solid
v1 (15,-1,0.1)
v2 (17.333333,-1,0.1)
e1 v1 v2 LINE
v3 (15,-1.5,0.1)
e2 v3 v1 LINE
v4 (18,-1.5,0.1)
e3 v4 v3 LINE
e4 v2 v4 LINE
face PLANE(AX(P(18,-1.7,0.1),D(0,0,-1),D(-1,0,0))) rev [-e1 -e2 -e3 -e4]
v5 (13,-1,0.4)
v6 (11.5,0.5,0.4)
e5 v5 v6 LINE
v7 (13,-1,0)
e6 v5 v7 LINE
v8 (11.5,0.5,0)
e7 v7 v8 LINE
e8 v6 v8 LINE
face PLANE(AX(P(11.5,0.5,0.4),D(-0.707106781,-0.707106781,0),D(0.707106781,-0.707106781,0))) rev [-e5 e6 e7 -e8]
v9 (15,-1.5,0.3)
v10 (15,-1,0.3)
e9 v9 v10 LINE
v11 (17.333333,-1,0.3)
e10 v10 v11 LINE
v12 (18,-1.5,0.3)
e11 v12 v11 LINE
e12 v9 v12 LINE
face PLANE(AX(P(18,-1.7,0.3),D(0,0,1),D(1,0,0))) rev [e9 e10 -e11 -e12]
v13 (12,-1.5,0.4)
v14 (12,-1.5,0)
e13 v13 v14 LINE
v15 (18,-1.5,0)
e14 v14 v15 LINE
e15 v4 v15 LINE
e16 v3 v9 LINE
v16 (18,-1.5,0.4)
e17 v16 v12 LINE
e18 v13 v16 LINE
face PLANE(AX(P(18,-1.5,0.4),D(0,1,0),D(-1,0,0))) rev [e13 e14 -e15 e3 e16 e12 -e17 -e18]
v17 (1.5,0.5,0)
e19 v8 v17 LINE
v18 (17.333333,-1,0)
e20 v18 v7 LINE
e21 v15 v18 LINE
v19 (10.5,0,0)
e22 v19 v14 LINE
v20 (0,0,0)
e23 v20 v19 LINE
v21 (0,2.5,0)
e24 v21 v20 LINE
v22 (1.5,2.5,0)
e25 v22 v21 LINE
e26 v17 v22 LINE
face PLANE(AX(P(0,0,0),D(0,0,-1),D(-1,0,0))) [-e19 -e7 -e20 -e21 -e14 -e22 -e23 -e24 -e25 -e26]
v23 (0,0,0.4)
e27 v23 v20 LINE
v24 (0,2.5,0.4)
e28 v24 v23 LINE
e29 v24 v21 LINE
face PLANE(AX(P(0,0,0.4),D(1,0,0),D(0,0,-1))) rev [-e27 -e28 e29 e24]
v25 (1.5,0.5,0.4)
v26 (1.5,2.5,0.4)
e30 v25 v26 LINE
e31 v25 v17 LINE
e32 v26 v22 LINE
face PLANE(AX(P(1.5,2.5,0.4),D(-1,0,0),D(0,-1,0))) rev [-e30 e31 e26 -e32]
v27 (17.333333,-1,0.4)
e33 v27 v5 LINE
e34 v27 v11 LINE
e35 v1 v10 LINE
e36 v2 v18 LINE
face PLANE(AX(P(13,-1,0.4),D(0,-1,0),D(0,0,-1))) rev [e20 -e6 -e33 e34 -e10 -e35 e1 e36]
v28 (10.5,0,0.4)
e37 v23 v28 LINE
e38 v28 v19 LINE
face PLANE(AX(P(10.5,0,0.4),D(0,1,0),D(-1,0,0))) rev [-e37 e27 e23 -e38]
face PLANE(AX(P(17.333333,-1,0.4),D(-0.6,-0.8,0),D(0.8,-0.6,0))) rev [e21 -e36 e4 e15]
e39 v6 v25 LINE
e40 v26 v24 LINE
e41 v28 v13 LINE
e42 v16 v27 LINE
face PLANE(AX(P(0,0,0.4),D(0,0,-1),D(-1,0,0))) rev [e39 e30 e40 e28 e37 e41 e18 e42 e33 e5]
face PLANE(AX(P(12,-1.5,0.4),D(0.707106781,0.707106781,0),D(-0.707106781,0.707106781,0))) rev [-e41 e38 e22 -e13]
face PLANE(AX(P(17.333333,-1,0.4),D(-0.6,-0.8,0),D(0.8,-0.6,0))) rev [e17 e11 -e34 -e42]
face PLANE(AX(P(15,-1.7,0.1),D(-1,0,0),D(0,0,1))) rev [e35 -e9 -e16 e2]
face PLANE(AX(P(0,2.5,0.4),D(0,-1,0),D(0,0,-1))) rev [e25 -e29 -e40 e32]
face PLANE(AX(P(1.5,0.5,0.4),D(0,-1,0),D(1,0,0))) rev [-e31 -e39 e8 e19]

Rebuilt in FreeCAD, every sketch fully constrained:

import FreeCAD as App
import Part
import Sketcher

V = App.Vector
Q = App.Units.Quantity


def add_polygon(sketch, points):
    """Adds a closed chain of lines whose ends are joined by coincident constraints."""
    first, n = sketch.GeometryCount, len(points)
    for a, b in zip(points, points[1:] + points[:1]):
        sketch.addGeometry(Part.LineSegment(App.Vector(*a, 0), App.Vector(*b, 0)), False)
    for i in range(n):
        sketch.addConstraint(Sketcher.Constraint("Coincident", first + i, 2, first + (i + 1) % n, 1))

doc = App.newDocument("Part")
params = doc.addObject("Spreadsheet::Sheet", "Params")
for row, (alias, value) in enumerate([
    ("sketch1_width", "6 mm"),
    ("sketch1_width2", "10 mm"),
    ("sketch1_height", "2 mm"),
    ("sketch1_width3", "10.5 mm"),
    ("sketch1_width4", "1.5 mm"),
    ("pad1_length", "0.4 mm"),
    ("sketch2_width", "3 mm"),
    ("sketch2_height", "0.2 mm"),
    ("pocket1_length", "0.7 mm"),
], start=1):
    params.set(f"A{row}", alias)
    params.set(f"B{row}", "=" + value)
    params.setAlias(f"B{row}", alias)

body = doc.addObject("PartDesign::Body", "Body")

sketch1 = body.newObject("Sketcher::SketchObject", "Sketch")
sketch1.AttachmentSupport = (doc.getObject("XY_Plane"), [""])
sketch1.MapMode = "FlatFace"
add_polygon(sketch1, [(0, 2.5), (0, 0), (10.5, 0), (12, -1.5), (18, -1.5), (17.3, -1), (13, -1), (11.5, 0.5), (1.5, 0.5), (1.5, 2.5)])
sketch1.addConstraint([
    Sketcher.Constraint("Vertical", 0),
    Sketcher.Constraint("Horizontal", 1),
    Sketcher.Constraint("Horizontal", 3),
    Sketcher.Constraint("Horizontal", 5),
    Sketcher.Constraint("Horizontal", 7),
    Sketcher.Constraint("Vertical", 8),
    Sketcher.Constraint("Horizontal", 9),
    Sketcher.Constraint("Coincident", 0, 2, -1, 1),
    Sketcher.Constraint("Parallel", 2, 6),
    Sketcher.Constraint("Equal", 2, 6),
    Sketcher.Constraint("DistanceX", 3, 1, 3, 2, Q("6 mm")),
    Sketcher.Constraint("DistanceX", 7, 2, 7, 1, Q("10 mm")),
    Sketcher.Constraint("DistanceY", 8, 1, 8, 2, Q("2 mm")),
    Sketcher.Constraint("Angle", 2, Q("-45 deg")),
    Sketcher.Constraint("DistanceX", 1, 1, 1, 2, Q("10.5 mm")),
    Sketcher.Constraint("DistanceX", 9, 2, 9, 1, Q("1.5 mm")),
    Sketcher.Constraint("DistanceY", 0, 2, 0, 1, Q("2.5 mm")),
    Sketcher.Constraint("DistanceX", -1, 1, 2, 2, Q("12 mm")),
    Sketcher.Constraint("DistanceX", 5, 2, 5, 1, Q("4.333333 mm")),
])
sketch1.setExpression("Constraints[20]", "Params.sketch1_width")
sketch1.setExpression("Constraints[21]", "Params.sketch1_width2")
sketch1.setExpression("Constraints[22]", "Params.sketch1_height")
sketch1.setExpression("Constraints[24]", "Params.sketch1_width3")
sketch1.setExpression("Constraints[25]", "Params.sketch1_width4")
pad1 = body.newObject("PartDesign::Pad", "Pad")
pad1.Profile = sketch1
pad1.setExpression("Length", "Params.pad1_length")

sketch2 = body.newObject("Sketcher::SketchObject", "Sketch001")
sketch2.AttachmentSupport = (doc.getObject("XZ_Plane"), [""])
sketch2.MapMode = "FlatFace"
sketch2.AttachmentOffset = App.Placement(V(0, 0, 1), App.Rotation())
add_polygon(sketch2, [(15, 0.1), (15, 0.3), (18, 0.3), (18, 0.1)])
sketch2.addConstraint([
    Sketcher.Constraint("Vertical", 0),
    Sketcher.Constraint("Horizontal", 1),
    Sketcher.Constraint("Vertical", 2),
    Sketcher.Constraint("Horizontal", 3),
    Sketcher.Constraint("DistanceX", 1, 1, 1, 2, Q("3 mm")),
    Sketcher.Constraint("DistanceY", 0, 1, 0, 2, Q("0.2 mm")),
    Sketcher.Constraint("DistanceX", -1, 1, 0, 2, Q("15 mm")),
    Sketcher.Constraint("DistanceY", -1, 1, 0, 2, Q("0.3 mm")),
])
sketch2.setExpression("Constraints[8]", "Params.sketch2_width")
sketch2.setExpression("Constraints[9]", "Params.sketch2_height")
pocket1 = body.newObject("PartDesign::Pocket", "Pocket")
pocket1.Profile = sketch2
pocket1.setExpression("Length", "Params.pocket1_length")
pocket1.Reversed = True

doc.recompute()
